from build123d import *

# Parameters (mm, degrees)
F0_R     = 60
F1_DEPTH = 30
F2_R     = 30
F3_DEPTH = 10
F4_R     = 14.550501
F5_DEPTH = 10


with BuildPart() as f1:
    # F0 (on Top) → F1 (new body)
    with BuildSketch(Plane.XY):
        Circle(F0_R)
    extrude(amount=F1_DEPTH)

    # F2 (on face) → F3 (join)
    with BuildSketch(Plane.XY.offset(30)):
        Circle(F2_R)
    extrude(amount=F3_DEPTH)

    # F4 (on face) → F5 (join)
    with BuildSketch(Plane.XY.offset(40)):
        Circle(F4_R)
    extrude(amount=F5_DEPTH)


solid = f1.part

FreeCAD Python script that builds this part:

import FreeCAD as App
import Part
import Sketcher

doc = App.newDocument("Part")
body = doc.addObject("PartDesign::Body", "Body")

# Sketch on XY plane
sketch1 = body.newObject("Sketcher::SketchObject", "Sketch")
sketch1.AttachmentSupport = (doc.getObject("XY_Plane"), [""])
sketch1.MapMode = "FlatFace"
sketch1.addGeometry(Part.Circle(App.Vector(0, 0, 0), App.Vector(0, 0, 1), 60), False)
sketch1.addConstraint([
    Sketcher.Constraint("Coincident", 0, 3, -1, 1),
    Sketcher.Constraint("Diameter", 0, 120.0),
])
pad1 = body.newObject("PartDesign::Pad", "Pad")
pad1.Profile = sketch1
pad1.Length = 30

# Sketch on XY plane
sketch2 = body.newObject("Sketcher::SketchObject", "Sketch001")
sketch2.AttachmentSupport = (doc.getObject("XY_Plane"), [""])
sketch2.MapMode = "FlatFace"
sketch2.AttachmentOffset = App.Placement(App.Vector(0, 0, 30), App.Rotation())
sketch2.addGeometry(Part.Circle(App.Vector(0, 0, 0), App.Vector(0, 0, 1), 30), False)
sketch2.addConstraint([
    Sketcher.Constraint("Coincident", 0, 3, -1, 1),
    Sketcher.Constraint("Diameter", 0, 60.0),
])
pad2 = body.newObject("PartDesign::Pad", "Pad001")
pad2.Profile = sketch2
pad2.Length = 10

# Sketch on XY plane
sketch3 = body.newObject("Sketcher::SketchObject", "Sketch002")
sketch3.AttachmentSupport = (doc.getObject("XY_Plane"), [""])
sketch3.MapMode = "FlatFace"
sketch3.AttachmentOffset = App.Placement(App.Vector(0, 0, 40), App.Rotation())
sketch3.addGeometry(Part.Circle(App.Vector(0, 0, 0), App.Vector(0, 0, 1), 14.550501), False)
sketch3.addConstraint([
    Sketcher.Constraint("Coincident", 0, 3, -1, 1),
    Sketcher.Constraint("Diameter", 0, 29.101002),
])
pad3 = body.newObject("PartDesign::Pad", "Pad002")
pad3.Profile = sketch3
pad3.Length = 10

doc.recompute()
